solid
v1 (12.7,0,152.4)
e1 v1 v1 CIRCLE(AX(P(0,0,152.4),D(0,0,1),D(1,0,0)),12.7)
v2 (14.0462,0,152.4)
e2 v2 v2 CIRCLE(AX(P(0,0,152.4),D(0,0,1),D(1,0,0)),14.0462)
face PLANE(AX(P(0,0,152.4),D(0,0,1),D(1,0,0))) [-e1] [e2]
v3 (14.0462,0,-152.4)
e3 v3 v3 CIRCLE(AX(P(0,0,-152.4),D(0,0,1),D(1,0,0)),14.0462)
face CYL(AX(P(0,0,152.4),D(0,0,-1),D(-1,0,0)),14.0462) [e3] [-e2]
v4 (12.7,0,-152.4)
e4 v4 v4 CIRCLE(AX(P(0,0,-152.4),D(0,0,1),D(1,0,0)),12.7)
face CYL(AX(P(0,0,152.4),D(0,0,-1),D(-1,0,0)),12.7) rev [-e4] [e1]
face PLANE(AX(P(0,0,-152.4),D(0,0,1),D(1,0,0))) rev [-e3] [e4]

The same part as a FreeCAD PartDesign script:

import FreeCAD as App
import Part
import Sketcher
Q = App.Units.Quantity

doc = App.newDocument("Part")
body = doc.addObject("PartDesign::Body", "Body")

sketch1 = body.newObject("Sketcher::SketchObject", "Sketch")
sketch1.AttachmentSupport = (doc.getObject("XY_Plane"), [""])
sketch1.MapMode = "FlatFace"
sketch1.addGeometry([
    Part.Circle(App.Vector(0, 0, 0), App.Vector(0, 0, 1), 14.0462),
    Part.Circle(App.Vector(0, 0, 0), App.Vector(0, 0, 1), 12.7),
], False)
sketch1.addConstraint([
    Sketcher.Constraint("Coincident", 0, 3, -1, 1),
    Sketcher.Constraint("Coincident", 1, 3, -1, 1),
    Sketcher.Constraint("Diameter", 1, Q("1 in")),
    Sketcher.Constraint("Diameter", 0, Q("1.106 in")),
])
pad1 = body.newObject("PartDesign::Pad", "Pad")
pad1.Profile = sketch1
pad1.Length = Q("12 in")
pad1.Midplane = True

doc.recompute()
